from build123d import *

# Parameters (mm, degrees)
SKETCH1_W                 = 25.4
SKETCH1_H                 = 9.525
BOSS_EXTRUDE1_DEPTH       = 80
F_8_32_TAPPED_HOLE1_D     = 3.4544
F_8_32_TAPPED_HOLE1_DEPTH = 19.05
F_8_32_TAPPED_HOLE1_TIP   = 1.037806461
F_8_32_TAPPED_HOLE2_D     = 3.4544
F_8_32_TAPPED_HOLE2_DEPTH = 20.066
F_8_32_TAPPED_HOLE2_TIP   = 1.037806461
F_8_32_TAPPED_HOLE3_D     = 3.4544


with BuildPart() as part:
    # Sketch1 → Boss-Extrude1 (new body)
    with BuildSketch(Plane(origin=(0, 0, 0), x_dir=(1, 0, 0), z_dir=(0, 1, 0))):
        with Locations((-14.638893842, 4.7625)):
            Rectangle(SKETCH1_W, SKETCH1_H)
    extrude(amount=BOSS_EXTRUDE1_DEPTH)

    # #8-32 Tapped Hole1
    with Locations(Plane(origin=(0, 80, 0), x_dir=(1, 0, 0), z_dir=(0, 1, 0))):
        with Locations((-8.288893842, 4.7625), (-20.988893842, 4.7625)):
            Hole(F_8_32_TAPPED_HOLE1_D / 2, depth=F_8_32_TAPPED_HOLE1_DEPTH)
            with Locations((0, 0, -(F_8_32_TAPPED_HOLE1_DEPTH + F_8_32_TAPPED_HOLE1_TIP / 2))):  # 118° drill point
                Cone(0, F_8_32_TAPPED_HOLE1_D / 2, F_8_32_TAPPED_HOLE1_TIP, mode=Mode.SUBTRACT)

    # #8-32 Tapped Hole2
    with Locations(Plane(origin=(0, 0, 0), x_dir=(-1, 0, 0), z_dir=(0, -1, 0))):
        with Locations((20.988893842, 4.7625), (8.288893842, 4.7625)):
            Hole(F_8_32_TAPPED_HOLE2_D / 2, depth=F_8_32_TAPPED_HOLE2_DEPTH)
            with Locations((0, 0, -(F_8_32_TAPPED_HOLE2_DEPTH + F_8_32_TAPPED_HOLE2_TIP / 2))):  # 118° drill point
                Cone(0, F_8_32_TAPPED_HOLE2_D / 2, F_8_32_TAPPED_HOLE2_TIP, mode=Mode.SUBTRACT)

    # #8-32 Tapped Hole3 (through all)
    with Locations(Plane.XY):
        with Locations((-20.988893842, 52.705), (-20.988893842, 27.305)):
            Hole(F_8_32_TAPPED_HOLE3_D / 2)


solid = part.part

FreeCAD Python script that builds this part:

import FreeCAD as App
import Part
import Sketcher

V = App.Vector
Q = App.Units.Quantity


def add_polygon(sketch, points):
    """Adds a closed chain of lines whose ends are joined by coincident constraints."""
    first, n = sketch.GeometryCount, len(points)
    for a, b in zip(points, points[1:] + points[:1]):
        sketch.addGeometry(Part.LineSegment(App.Vector(*a, 0), App.Vector(*b, 0)), False)
    for i in range(n):
        sketch.addConstraint(Sketcher.Constraint("Coincident", first + i, 2, first + (i + 1) % n, 1))

doc = App.newDocument("Part")
body = doc.addObject("PartDesign::Body", "Body")

# Sketch on XZ plane
sketch1 = body.newObject("Sketcher::SketchObject", "Sketch")
sketch1.AttachmentSupport = (doc.getObject("XZ_Plane"), [""])
sketch1.MapMode = "FlatFace"
add_polygon(sketch1, [(-27.338894, -9.525), (-27.338894, 0), (-1.938894, 0), (-1.938894, -9.525)])  # lines 0-3
sketch1.addConstraint([
    Sketcher.Constraint("Vertical", 0),
    Sketcher.Constraint("Horizontal", 1),
    Sketcher.Constraint("Vertical", 2),
    Sketcher.Constraint("Horizontal", 3),
    Sketcher.Constraint("PointOnObject", 0, 2, -1),
    Sketcher.Constraint("DistanceX", 1, 1, 1, 2, Q("1 in")),
    Sketcher.Constraint("DistanceY", 0, 1, 0, 2, Q("0.375 in")),
    Sketcher.Constraint("DistanceX", 0, 2, -1, 1, Q("27.338894 mm")),
])
pad1 = body.newObject("PartDesign::Pad", "Pad")
pad1.Profile = sketch1
pad1.Length = 80
pad1.Reversed = True

# Sketch on XZ plane
sketch2 = body.newObject("Sketcher::SketchObject", "Sketch001")
sketch2.AttachmentSupport = (doc.getObject("XZ_Plane"), [""])
sketch2.MapMode = "FlatFace"
sketch2.AttachmentOffset = App.Placement(V(0, 0, -80), App.Rotation())
sketch2.addGeometry([
    Part.Circle(V(-8.288894, -4.7625, 0), V(0, 0, 1), 1.7272),
    Part.Circle(V(-20.988894, -4.7625, 0), V(0, 0, 1), 1.7272),
], False)
sketch2.addConstraint([
    Sketcher.Constraint("Equal", 0, 1),
    Sketcher.Constraint("Horizontal", 0, 3, 1, 3),
    Sketcher.Constraint("Diameter", 0, Q("0.136 in")),
    Sketcher.Constraint("DistanceX", 1, 3, 0, 3, Q("0.5 in")),
    Sketcher.Constraint("DistanceY", 0, 3, -1, 1, Q("0.1875 in")),
    Sketcher.Constraint("DistanceX", 0, 3, -1, 1, Q("8.288894 mm")),
])
doc.recompute()
hole = body.newObject("PartDesign::Hole", "Hole")
hole.Profile = sketch2
hole.ThreadType = "None"
hole.Diameter = Q("0.136 in")
hole.DepthType = "Dimension"
hole.Depth = Q("0.75 in")
hole.DrillPoint = "Angled"
hole.DrillPointAngle = 118
hole.Reversed = True

# Sketch on XZ plane
sketch3 = body.newObject("Sketcher::SketchObject", "Sketch002")
sketch3.AttachmentSupport = (doc.getObject("XZ_Plane"), [""])
sketch3.MapMode = "FlatFace"
sketch3.addGeometry([
    Part.Circle(V(-20.988894, -4.7625, 0), V(0, 0, 1), 1.7272),
    Part.Circle(V(-8.288894, -4.7625, 0), V(0, 0, 1), 1.7272),
], False)
sketch3.addConstraint([
    Sketcher.Constraint("Equal", 0, 1),
    Sketcher.Constraint("Horizontal", 0, 3, 1, 3),
    Sketcher.Constraint("Diameter", 0, Q("0.136 in")),
    Sketcher.Constraint("DistanceX", 0, 3, 1, 3, Q("0.5 in")),
    Sketcher.Constraint("DistanceY", 0, 3, -1, 1, Q("0.1875 in")),
    Sketcher.Constraint("DistanceX", 0, 3, -1, 1, Q("20.988894 mm")),
])
doc.recompute()
hole2 = body.newObject("PartDesign::Hole", "Hole001")
hole2.Profile = sketch3
hole2.ThreadType = "None"
hole2.Diameter = Q("0.136 in")
hole2.DepthType = "Dimension"
hole2.Depth = Q("0.79 in")
hole2.DrillPoint = "Angled"
hole2.DrillPointAngle = 118

# Sketch on XY plane
sketch4 = body.newObject("Sketcher::SketchObject", "Sketch003")
sketch4.AttachmentSupport = (doc.getObject("XY_Plane"), [""])
sketch4.MapMode = "FlatFace"
sketch4.addGeometry([
    Part.Circle(V(-20.988894, 52.705, 0), V(0, 0, 1), 1.7272),
    Part.Circle(V(-20.988894, 27.305, 0), V(0, 0, 1), 1.7272),
], False)
sketch4.addConstraint([
    Sketcher.Constraint("Equal", 0, 1),
    Sketcher.Constraint("Vertical", 0, 3, 1, 3),
    Sketcher.Constraint("Diameter", 0, Q("0.136 in")),
    Sketcher.Constraint("DistanceY", 1, 3, 0, 3, Q("1 in")),
    Sketcher.Constraint("DistanceY", -1, 1, 0, 3, Q("2.075 in")),
    Sketcher.Constraint("DistanceX", 0, 3, -1, 1, Q("20.988894 mm")),
])
doc.recompute()
hole3 = body.newObject("PartDesign::Hole", "Hole002")
hole3.Profile = sketch4
hole3.ThreadType = "None"
hole3.Diameter = Q("0.136 in")
hole3.DepthType = "ThroughAll"

doc.recompute()
